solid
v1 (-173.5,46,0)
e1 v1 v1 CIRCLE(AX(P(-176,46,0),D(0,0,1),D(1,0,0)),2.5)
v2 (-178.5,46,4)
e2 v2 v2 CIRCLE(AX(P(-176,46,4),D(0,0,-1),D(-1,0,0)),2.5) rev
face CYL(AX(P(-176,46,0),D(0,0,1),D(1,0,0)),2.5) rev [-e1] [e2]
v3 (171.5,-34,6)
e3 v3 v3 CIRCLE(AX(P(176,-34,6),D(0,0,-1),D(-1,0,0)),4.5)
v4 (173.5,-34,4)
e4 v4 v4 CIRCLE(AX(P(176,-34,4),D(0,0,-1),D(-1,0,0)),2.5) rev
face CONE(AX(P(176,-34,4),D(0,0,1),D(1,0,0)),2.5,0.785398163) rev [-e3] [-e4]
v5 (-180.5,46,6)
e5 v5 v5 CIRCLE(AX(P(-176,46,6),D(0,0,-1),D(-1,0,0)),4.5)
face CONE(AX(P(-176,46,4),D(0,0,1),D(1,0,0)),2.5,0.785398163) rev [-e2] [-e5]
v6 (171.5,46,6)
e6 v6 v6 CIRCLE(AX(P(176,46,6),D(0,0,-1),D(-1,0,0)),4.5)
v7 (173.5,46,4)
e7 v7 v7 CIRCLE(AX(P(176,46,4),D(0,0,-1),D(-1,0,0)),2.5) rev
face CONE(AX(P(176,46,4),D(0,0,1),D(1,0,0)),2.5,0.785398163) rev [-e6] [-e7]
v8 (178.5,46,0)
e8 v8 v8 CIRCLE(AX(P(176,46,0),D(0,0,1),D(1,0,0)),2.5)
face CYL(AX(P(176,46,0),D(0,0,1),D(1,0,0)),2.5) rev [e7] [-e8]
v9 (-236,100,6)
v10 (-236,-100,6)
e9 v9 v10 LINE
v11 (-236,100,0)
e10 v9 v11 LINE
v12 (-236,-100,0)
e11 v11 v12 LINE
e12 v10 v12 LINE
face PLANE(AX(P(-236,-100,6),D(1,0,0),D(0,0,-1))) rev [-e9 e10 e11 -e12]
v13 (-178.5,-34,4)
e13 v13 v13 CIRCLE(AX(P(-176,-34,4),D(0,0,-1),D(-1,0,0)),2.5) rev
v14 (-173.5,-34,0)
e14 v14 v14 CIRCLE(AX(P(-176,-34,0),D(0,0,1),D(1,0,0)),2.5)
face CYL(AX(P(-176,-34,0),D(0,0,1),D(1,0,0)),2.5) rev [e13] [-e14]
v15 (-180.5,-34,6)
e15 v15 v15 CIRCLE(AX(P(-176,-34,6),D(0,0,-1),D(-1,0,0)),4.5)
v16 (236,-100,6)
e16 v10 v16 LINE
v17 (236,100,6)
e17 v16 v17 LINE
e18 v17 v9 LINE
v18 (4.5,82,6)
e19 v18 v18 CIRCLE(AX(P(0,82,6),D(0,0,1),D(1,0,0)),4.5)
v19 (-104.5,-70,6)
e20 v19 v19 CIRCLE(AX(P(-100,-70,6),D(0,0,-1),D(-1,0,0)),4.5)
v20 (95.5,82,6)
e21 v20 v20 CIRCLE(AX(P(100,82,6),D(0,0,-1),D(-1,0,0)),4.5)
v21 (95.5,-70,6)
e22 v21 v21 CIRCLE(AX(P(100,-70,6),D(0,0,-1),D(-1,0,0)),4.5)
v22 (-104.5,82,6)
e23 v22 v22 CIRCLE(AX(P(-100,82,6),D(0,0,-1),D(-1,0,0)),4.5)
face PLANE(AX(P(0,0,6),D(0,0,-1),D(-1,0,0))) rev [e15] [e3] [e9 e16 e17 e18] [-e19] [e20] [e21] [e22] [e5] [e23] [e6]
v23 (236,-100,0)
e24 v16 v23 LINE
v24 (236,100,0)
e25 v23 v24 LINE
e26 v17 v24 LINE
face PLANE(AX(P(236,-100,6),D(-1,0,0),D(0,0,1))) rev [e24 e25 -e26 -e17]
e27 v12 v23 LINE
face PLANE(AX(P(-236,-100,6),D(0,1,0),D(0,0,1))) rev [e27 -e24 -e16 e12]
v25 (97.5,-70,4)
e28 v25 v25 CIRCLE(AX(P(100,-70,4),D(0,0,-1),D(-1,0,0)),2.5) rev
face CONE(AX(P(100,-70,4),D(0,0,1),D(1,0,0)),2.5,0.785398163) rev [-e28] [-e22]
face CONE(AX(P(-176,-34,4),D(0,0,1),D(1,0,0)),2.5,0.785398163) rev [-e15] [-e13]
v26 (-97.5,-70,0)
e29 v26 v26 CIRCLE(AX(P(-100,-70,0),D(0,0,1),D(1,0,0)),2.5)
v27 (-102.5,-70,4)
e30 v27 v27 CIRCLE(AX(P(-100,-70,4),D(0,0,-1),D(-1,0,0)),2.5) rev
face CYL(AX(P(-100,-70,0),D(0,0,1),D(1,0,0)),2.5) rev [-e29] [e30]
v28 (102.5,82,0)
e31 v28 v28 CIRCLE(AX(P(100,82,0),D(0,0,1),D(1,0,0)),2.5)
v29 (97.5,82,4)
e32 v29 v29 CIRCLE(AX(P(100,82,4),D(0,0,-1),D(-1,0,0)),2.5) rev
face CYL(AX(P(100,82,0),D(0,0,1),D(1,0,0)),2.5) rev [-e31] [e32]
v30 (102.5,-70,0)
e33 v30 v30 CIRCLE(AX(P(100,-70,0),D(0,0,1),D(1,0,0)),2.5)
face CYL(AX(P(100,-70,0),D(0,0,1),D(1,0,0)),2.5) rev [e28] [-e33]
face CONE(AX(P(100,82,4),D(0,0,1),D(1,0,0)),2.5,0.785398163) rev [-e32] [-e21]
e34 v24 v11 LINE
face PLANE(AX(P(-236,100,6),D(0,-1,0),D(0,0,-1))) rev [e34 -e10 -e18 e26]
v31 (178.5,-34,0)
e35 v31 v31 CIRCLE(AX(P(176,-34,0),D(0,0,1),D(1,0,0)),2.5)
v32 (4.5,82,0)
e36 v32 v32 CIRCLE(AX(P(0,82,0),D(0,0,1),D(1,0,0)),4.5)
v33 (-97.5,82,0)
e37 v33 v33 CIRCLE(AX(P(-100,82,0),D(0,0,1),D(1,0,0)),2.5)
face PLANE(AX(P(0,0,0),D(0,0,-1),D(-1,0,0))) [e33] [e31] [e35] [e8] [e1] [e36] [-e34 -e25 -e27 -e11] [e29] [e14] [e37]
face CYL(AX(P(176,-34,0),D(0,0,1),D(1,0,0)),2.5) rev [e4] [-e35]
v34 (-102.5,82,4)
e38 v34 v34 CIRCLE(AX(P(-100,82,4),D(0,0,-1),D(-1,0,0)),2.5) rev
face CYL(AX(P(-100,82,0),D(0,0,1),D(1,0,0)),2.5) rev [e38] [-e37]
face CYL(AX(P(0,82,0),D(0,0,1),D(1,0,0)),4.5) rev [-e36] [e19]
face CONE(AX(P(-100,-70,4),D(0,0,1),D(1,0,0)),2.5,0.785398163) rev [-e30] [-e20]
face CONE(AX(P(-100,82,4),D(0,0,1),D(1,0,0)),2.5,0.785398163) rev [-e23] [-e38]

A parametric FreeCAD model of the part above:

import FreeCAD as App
import Part
import Sketcher


def edges_at(feature, points):
    """Names of the edges that pass closest to the given points."""
    edges = feature.Shape.Edges
    near = lambda p: min(range(len(edges)), key=lambda i: edges[i].distToShape(Part.Vertex(*p))[0])
    return sorted({f"Edge{near(p) + 1}" for p in points})

doc = App.newDocument("Part")
params = doc.addObject("Spreadsheet::Sheet", "Params")
for row, (alias, value) in enumerate([
    ("sketch1_width", "472 mm"),
    ("sketch1_height", "200 mm"),
    ("pad1_length", "6 mm"),
    ("sketch2_diameter", "5 mm"),
    ("chamfer_size", "2 mm"),
    ("sketch3_diameter", "9 mm"),
], start=1):
    params.set(f"A{row}", alias)
    params.set(f"B{row}", "=" + value)
    params.setAlias(f"B{row}", alias)

body = doc.addObject("PartDesign::Body", "Body")

# Sketch on XY plane
sketch1 = doc.addObject("Sketcher::SketchObject", "Sketch")
body.addObject(sketch1)
sketch1.AttachmentSupport = (doc.XY_Plane, [""])
sketch1.MapMode = "FlatFace"
sketch1.addGeometry(Part.LineSegment(App.Vector(-236, 100, 0), App.Vector(-236, -100, 0)), False)
sketch1.addGeometry(Part.LineSegment(App.Vector(-236, -100, 0), App.Vector(236, -100, 0)), False)
sketch1.addGeometry(Part.LineSegment(App.Vector(236, -100, 0), App.Vector(236, 100, 0)), False)
sketch1.addGeometry(Part.LineSegment(App.Vector(236, 100, 0), App.Vector(-236, 100, 0)), False)
sketch1.addConstraint(Sketcher.Constraint("Coincident", 0, 2, 1, 1))
sketch1.addConstraint(Sketcher.Constraint("Coincident", 1, 2, 2, 1))
sketch1.addConstraint(Sketcher.Constraint("Coincident", 2, 2, 3, 1))
sketch1.addConstraint(Sketcher.Constraint("Coincident", 3, 2, 0, 1))
sketch1.addConstraint(Sketcher.Constraint("Vertical", 0))
sketch1.addConstraint(Sketcher.Constraint("Horizontal", 1))
sketch1.addConstraint(Sketcher.Constraint("Vertical", 2))
sketch1.addConstraint(Sketcher.Constraint("Horizontal", 3))
sketch1.addConstraint(Sketcher.Constraint("Symmetric", 0, 2, 2, 2, -1, 1))
sketch1.addConstraint(Sketcher.Constraint("DistanceX", 1, 1, 1, 2, 472.0))
sketch1.addConstraint(Sketcher.Constraint("DistanceY", 0, 2, 0, 1, 200.0))
sketch1.setExpression("Constraints[9]", "Params.sketch1_width")
sketch1.setExpression("Constraints[10]", "Params.sketch1_height")
pad1 = doc.addObject("PartDesign::Pad", "Pad")
body.addObject(pad1)
pad1.Profile = sketch1
pad1.setExpression("Length", "Params.pad1_length")

# Sketch on XY plane
sketch2 = doc.addObject("Sketcher::SketchObject", "Sketch001")
body.addObject(sketch2)
sketch2.AttachmentSupport = (doc.XY_Plane, [""])
sketch2.MapMode = "FlatFace"
sketch2.AttachmentOffset = App.Placement(App.Vector(0, 0, 6), App.Rotation())
sketch2.addGeometry(Part.Circle(App.Vector(100, -70, 0), App.Vector(0, 0, 1), 2.5), False)
sketch2.addGeometry(Part.Circle(App.Vector(-100, -70, 0), App.Vector(0, 0, 1), 2.5), False)
sketch2.addGeometry(Part.Circle(App.Vector(-100, 82, 0), App.Vector(0, 0, 1), 2.5), False)
sketch2.addGeometry(Part.Circle(App.Vector(100, 82, 0), App.Vector(0, 0, 1), 2.5), False)
sketch2.addGeometry(Part.Circle(App.Vector(176, -34, 0), App.Vector(0, 0, 1), 2.5), False)
sketch2.addGeometry(Part.Circle(App.Vector(176, 46, 0), App.Vector(0, 0, 1), 2.5), False)
sketch2.addGeometry(Part.Circle(App.Vector(-176, 46, 0), App.Vector(0, 0, 1), 2.5), False)
sketch2.addGeometry(Part.Circle(App.Vector(-176, -34, 0), App.Vector(0, 0, 1), 2.5), False)
sketch2.addConstraint(Sketcher.Constraint("Equal", 0, 1))
sketch2.addConstraint(Sketcher.Constraint("Equal", 1, 2))
sketch2.addConstraint(Sketcher.Constraint("Equal", 2, 3))
sketch2.addConstraint(Sketcher.Constraint("Equal", 3, 4))
sketch2.addConstraint(Sketcher.Constraint("Equal", 4, 5))
sketch2.addConstraint(Sketcher.Constraint("Equal", 5, 6))
sketch2.addConstraint(Sketcher.Constraint("Equal", 6, 7))
sketch2.addConstraint(Sketcher.Constraint("Symmetric", 0, 3, 1, 3, -2))
sketch2.addConstraint(Sketcher.Constraint("Symmetric", 2, 3, 3, 3, -2))
sketch2.addConstraint(Sketcher.Constraint("Symmetric", 5, 3, 6, 3, -2))
sketch2.addConstraint(Sketcher.Constraint("Symmetric", 4, 3, 7, 3, -2))
sketch2.addConstraint(Sketcher.Constraint("Vertical", 1, 3, 2, 3))
sketch2.addConstraint(Sketcher.Constraint("Vertical", 4, 3, 5, 3))
sketch2.addConstraint(Sketcher.Constraint("Diameter", 0, 5.0))
sketch2.addConstraint(Sketcher.Constraint("DistanceX", -1, 1, 0, 3, 100.0))
sketch2.addConstraint(Sketcher.Constraint("DistanceY", 0, 3, -1, 1, 70.0))
sketch2.addConstraint(Sketcher.Constraint("DistanceY", -1, 1, 2, 3, 82.0))
sketch2.addConstraint(Sketcher.Constraint("DistanceX", -1, 1, 4, 3, 176.0))
sketch2.addConstraint(Sketcher.Constraint("DistanceY", 4, 3, -1, 1, 34.0))
sketch2.addConstraint(Sketcher.Constraint("DistanceY", -1, 1, 5, 3, 46.0))
sketch2.setExpression("Constraints[13]", "Params.sketch2_diameter")
pocket1 = doc.addObject("PartDesign::Pocket", "Pocket")
body.addObject(pocket1)
pocket1.Profile = sketch2
pocket1.Type = "ThroughAll"
doc.recompute()

chamfer = doc.addObject("PartDesign::Chamfer", "Chamfer")
body.addObject(chamfer)
chamfer.Base = (pocket1, edges_at(pocket1, [
    (-102.5, -70, 6),
    (-102.5, 82, 6),
    (97.5, 82, 6),
    (173.5, 46, 6),
    (-178.5, -34, 6),
    (-178.5, 46, 6),
    (173.5, -34, 6),
    (97.5, -70, 6),
]))
chamfer.setExpression("Size", "Params.chamfer_size")

# Sketch on XY plane
sketch3 = doc.addObject("Sketcher::SketchObject", "Sketch002")
body.addObject(sketch3)
sketch3.AttachmentSupport = (doc.XY_Plane, [""])
sketch3.MapMode = "FlatFace"
sketch3.AttachmentOffset = App.Placement(App.Vector(0, 0, 6), App.Rotation())
sketch3.addGeometry(Part.Circle(App.Vector(0, 82, 0), App.Vector(0, 0, 1), 4.5), False)
sketch3.addConstraint(Sketcher.Constraint("PointOnObject", 0, 3, -2))
sketch3.addConstraint(Sketcher.Constraint("Diameter", 0, 9.0))
sketch3.addConstraint(Sketcher.Constraint("DistanceY", -1, 1, 0, 3, 82.0))
sketch3.setExpression("Constraints[1]", "Params.sketch3_diameter")
pocket2 = doc.addObject("PartDesign::Pocket", "Pocket001")
body.addObject(pocket2)
pocket2.Profile = sketch3
pocket2.Type = "ThroughAll"

doc.recompute()
